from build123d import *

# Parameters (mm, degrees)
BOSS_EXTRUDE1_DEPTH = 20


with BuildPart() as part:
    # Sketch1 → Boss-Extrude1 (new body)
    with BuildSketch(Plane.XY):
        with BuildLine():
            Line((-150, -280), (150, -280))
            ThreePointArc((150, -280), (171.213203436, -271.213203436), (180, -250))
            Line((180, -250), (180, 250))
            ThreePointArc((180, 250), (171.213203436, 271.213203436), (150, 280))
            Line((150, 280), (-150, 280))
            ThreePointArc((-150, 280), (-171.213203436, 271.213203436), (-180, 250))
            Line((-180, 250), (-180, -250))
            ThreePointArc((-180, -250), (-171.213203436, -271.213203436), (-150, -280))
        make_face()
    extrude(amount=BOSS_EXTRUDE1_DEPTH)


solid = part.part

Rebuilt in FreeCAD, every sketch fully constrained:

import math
import FreeCAD as App
import Part
import Sketcher
Q = App.Units.Quantity

doc = App.newDocument("Part")
body = doc.addObject("PartDesign::Body", "Body")

sketch1 = body.newObject("Sketcher::SketchObject", "Sketch")
sketch1.AttachmentSupport = (doc.getObject("XY_Plane"), [""])
sketch1.MapMode = "FlatFace"
sketch1.addGeometry(Part.LineSegment(App.Vector(-150, -280, 0), App.Vector(150, -280, 0)), False)
sketch1.addGeometry(Part.ArcOfCircle(Part.Circle(App.Vector(150, -250, 0), App.Vector(0, 0, 1), 30), math.radians(-90), math.radians(0)), False)
sketch1.addGeometry(Part.LineSegment(App.Vector(180, -250, 0), App.Vector(180, 250, 0)), False)
sketch1.addGeometry(Part.ArcOfCircle(Part.Circle(App.Vector(150, 250, 0), App.Vector(0, 0, 1), 30), math.radians(0), math.radians(90)), False)
sketch1.addGeometry(Part.LineSegment(App.Vector(150, 280, 0), App.Vector(-150, 280, 0)), False)
sketch1.addGeometry(Part.ArcOfCircle(Part.Circle(App.Vector(-150, 250, 0), App.Vector(0, 0, 1), 30), math.radians(90), math.radians(180)), False)
sketch1.addGeometry(Part.LineSegment(App.Vector(-180, 250, 0), App.Vector(-180, -250, 0)), False)
sketch1.addGeometry(Part.ArcOfCircle(Part.Circle(App.Vector(-150, -250, 0), App.Vector(0, 0, 1), 30), math.radians(180), math.radians(270)), False)
sketch1.addConstraint(Sketcher.Constraint("Tangent", 0, 2, 1, 1))
sketch1.addConstraint(Sketcher.Constraint("Tangent", 1, 2, 2, 1))
sketch1.addConstraint(Sketcher.Constraint("Tangent", 2, 2, 3, 1))
sketch1.addConstraint(Sketcher.Constraint("Tangent", 3, 2, 4, 1))
sketch1.addConstraint(Sketcher.Constraint("Tangent", 4, 2, 5, 1))
sketch1.addConstraint(Sketcher.Constraint("Tangent", 5, 2, 6, 1))
sketch1.addConstraint(Sketcher.Constraint("Tangent", 6, 2, 7, 1))
sketch1.addConstraint(Sketcher.Constraint("Tangent", 7, 2, 0, 1))
sketch1.addConstraint(Sketcher.Constraint("Horizontal", 0))
sketch1.addConstraint(Sketcher.Constraint("Vertical", 2))
sketch1.addConstraint(Sketcher.Constraint("Horizontal", 4))
sketch1.addConstraint(Sketcher.Constraint("Vertical", 6))
sketch1.addConstraint(Sketcher.Constraint("Equal", 1, 3))
sketch1.addConstraint(Sketcher.Constraint("Equal", 3, 5))
sketch1.addConstraint(Sketcher.Constraint("Equal", 5, 7))
sketch1.addConstraint(Sketcher.Constraint("Symmetric", 1, 3, 5, 3, -1, 1))
sketch1.addConstraint(Sketcher.Constraint("Radius", 1, Q("30 mm")))
sketch1.addConstraint(Sketcher.Constraint("DistanceX", 0, 1, 0, 2, Q("300 mm")))
sketch1.addConstraint(Sketcher.Constraint("DistanceY", 2, 1, 2, 2, Q("500 mm")))
pad1 = body.newObject("PartDesign::Pad", "Pad")
pad1.Profile = sketch1
pad1.Length = 20

doc.recompute()
